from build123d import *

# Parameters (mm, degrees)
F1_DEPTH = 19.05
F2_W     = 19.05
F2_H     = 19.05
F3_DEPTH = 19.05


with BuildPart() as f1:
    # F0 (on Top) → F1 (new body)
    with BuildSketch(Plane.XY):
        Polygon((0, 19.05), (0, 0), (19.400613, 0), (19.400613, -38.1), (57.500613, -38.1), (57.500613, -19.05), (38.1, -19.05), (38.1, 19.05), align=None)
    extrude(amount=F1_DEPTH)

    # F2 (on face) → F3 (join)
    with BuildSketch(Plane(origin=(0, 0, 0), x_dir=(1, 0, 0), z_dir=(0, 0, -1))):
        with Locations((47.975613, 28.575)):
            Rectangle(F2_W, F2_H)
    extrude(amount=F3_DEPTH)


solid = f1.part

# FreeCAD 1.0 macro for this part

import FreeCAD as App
import Part
import Sketcher

V = App.Vector
Q = App.Units.Quantity

doc = App.newDocument("Part")
body = doc.addObject("PartDesign::Body", "Body")

sketch1 = body.newObject("Sketcher::SketchObject", "Sketch")
sketch1.AttachmentSupport = (doc.getObject("XY_Plane"), [""])
sketch1.MapMode = "FlatFace"
sketch1.addGeometry([
    Part.LineSegment(V(0, 19, 0), V(0, 0, 0)),
    Part.LineSegment(V(0, 0, 0), V(19, 0, 0)),
    Part.LineSegment(V(19, 0, 0), V(19, -38, 0)),
    Part.LineSegment(V(19, -38, 0), V(58, -38, 0)),
    Part.LineSegment(V(58, -38, 0), V(58, -19, 0)),
    Part.LineSegment(V(58, -19, 0), V(38, -19, 0)),
    Part.LineSegment(V(38, -19, 0), V(38, 19, 0)),
    Part.LineSegment(V(38, 19, 0), V(0, 19, 0)),
], False)
sketch1.addConstraint([
    Sketcher.Constraint("Coincident", 0, 2, 1, 1),
    Sketcher.Constraint("Coincident", 1, 2, 2, 1),
    Sketcher.Constraint("Coincident", 2, 2, 3, 1),
    Sketcher.Constraint("Coincident", 3, 2, 4, 1),
    Sketcher.Constraint("Coincident", 4, 2, 5, 1),
    Sketcher.Constraint("Coincident", 5, 2, 6, 1),
    Sketcher.Constraint("Coincident", 6, 2, 7, 1),
    Sketcher.Constraint("Coincident", 7, 2, 0, 1),
    Sketcher.Constraint("Vertical", 0),
    Sketcher.Constraint("Horizontal", 1),
    Sketcher.Constraint("Vertical", 2),
    Sketcher.Constraint("Horizontal", 3),
    Sketcher.Constraint("Vertical", 4),
    Sketcher.Constraint("Horizontal", 5),
    Sketcher.Constraint("Vertical", 6),
    Sketcher.Constraint("Horizontal", 7),
    Sketcher.Constraint("Coincident", 0, 2, -1, 1),
    Sketcher.Constraint("Equal", 1, 5),
    Sketcher.Constraint("Equal", 7, 2),
    Sketcher.Constraint("Equal", 0, 4),
    Sketcher.Constraint("DistanceX", 3, 1, 3, 2, Q("1.5 in")),
    Sketcher.Constraint("DistanceY", 0, 2, 0, 1, Q("0.75 in")),
    Sketcher.Constraint("DistanceX", 1, 1, 1, 2, Q("19.400613 mm")),
])
pad1 = body.newObject("PartDesign::Pad", "Pad")
pad1.Profile = sketch1
pad1.Length = Q("0.75 in")

sketch2 = body.newObject("Sketcher::SketchObject", "Sketch001")
sketch2.AttachmentSupport = (doc.getObject("XY_Plane"), [""])
sketch2.MapMode = "FlatFace"
sketch2.addGeometry([
    Part.LineSegment(V(38, -38, 0), V(38, -19, 0)),
    Part.LineSegment(V(38, -19, 0), V(58, -19, 0)),
    Part.LineSegment(V(58, -19, 0), V(58, -38, 0)),
    Part.LineSegment(V(58, -38, 0), V(38, -38, 0)),
], False)
sketch2.addConstraint([
    Sketcher.Constraint("Coincident", 0, 2, 1, 1),
    Sketcher.Constraint("Coincident", 1, 2, 2, 1),
    Sketcher.Constraint("Coincident", 2, 2, 3, 1),
    Sketcher.Constraint("Coincident", 3, 2, 0, 1),
    Sketcher.Constraint("Vertical", 0),
    Sketcher.Constraint("Horizontal", 1),
    Sketcher.Constraint("Vertical", 2),
    Sketcher.Constraint("Horizontal", 3),
    Sketcher.Constraint("Equal", 3, 0),
    Sketcher.Constraint("DistanceX", 1, 1, 1, 2, Q("0.75 in")),
    Sketcher.Constraint("DistanceY", 2, 2, -1, 1, Q("1.5 in")),
    Sketcher.Constraint("DistanceX", -1, 1, 0, 2, Q("38.450613 mm")),
])
pad2 = body.newObject("PartDesign::Pad", "Pad001")
pad2.Profile = sketch2
pad2.Length = Q("0.75 in")
pad2.Reversed = True

doc.recompute()
